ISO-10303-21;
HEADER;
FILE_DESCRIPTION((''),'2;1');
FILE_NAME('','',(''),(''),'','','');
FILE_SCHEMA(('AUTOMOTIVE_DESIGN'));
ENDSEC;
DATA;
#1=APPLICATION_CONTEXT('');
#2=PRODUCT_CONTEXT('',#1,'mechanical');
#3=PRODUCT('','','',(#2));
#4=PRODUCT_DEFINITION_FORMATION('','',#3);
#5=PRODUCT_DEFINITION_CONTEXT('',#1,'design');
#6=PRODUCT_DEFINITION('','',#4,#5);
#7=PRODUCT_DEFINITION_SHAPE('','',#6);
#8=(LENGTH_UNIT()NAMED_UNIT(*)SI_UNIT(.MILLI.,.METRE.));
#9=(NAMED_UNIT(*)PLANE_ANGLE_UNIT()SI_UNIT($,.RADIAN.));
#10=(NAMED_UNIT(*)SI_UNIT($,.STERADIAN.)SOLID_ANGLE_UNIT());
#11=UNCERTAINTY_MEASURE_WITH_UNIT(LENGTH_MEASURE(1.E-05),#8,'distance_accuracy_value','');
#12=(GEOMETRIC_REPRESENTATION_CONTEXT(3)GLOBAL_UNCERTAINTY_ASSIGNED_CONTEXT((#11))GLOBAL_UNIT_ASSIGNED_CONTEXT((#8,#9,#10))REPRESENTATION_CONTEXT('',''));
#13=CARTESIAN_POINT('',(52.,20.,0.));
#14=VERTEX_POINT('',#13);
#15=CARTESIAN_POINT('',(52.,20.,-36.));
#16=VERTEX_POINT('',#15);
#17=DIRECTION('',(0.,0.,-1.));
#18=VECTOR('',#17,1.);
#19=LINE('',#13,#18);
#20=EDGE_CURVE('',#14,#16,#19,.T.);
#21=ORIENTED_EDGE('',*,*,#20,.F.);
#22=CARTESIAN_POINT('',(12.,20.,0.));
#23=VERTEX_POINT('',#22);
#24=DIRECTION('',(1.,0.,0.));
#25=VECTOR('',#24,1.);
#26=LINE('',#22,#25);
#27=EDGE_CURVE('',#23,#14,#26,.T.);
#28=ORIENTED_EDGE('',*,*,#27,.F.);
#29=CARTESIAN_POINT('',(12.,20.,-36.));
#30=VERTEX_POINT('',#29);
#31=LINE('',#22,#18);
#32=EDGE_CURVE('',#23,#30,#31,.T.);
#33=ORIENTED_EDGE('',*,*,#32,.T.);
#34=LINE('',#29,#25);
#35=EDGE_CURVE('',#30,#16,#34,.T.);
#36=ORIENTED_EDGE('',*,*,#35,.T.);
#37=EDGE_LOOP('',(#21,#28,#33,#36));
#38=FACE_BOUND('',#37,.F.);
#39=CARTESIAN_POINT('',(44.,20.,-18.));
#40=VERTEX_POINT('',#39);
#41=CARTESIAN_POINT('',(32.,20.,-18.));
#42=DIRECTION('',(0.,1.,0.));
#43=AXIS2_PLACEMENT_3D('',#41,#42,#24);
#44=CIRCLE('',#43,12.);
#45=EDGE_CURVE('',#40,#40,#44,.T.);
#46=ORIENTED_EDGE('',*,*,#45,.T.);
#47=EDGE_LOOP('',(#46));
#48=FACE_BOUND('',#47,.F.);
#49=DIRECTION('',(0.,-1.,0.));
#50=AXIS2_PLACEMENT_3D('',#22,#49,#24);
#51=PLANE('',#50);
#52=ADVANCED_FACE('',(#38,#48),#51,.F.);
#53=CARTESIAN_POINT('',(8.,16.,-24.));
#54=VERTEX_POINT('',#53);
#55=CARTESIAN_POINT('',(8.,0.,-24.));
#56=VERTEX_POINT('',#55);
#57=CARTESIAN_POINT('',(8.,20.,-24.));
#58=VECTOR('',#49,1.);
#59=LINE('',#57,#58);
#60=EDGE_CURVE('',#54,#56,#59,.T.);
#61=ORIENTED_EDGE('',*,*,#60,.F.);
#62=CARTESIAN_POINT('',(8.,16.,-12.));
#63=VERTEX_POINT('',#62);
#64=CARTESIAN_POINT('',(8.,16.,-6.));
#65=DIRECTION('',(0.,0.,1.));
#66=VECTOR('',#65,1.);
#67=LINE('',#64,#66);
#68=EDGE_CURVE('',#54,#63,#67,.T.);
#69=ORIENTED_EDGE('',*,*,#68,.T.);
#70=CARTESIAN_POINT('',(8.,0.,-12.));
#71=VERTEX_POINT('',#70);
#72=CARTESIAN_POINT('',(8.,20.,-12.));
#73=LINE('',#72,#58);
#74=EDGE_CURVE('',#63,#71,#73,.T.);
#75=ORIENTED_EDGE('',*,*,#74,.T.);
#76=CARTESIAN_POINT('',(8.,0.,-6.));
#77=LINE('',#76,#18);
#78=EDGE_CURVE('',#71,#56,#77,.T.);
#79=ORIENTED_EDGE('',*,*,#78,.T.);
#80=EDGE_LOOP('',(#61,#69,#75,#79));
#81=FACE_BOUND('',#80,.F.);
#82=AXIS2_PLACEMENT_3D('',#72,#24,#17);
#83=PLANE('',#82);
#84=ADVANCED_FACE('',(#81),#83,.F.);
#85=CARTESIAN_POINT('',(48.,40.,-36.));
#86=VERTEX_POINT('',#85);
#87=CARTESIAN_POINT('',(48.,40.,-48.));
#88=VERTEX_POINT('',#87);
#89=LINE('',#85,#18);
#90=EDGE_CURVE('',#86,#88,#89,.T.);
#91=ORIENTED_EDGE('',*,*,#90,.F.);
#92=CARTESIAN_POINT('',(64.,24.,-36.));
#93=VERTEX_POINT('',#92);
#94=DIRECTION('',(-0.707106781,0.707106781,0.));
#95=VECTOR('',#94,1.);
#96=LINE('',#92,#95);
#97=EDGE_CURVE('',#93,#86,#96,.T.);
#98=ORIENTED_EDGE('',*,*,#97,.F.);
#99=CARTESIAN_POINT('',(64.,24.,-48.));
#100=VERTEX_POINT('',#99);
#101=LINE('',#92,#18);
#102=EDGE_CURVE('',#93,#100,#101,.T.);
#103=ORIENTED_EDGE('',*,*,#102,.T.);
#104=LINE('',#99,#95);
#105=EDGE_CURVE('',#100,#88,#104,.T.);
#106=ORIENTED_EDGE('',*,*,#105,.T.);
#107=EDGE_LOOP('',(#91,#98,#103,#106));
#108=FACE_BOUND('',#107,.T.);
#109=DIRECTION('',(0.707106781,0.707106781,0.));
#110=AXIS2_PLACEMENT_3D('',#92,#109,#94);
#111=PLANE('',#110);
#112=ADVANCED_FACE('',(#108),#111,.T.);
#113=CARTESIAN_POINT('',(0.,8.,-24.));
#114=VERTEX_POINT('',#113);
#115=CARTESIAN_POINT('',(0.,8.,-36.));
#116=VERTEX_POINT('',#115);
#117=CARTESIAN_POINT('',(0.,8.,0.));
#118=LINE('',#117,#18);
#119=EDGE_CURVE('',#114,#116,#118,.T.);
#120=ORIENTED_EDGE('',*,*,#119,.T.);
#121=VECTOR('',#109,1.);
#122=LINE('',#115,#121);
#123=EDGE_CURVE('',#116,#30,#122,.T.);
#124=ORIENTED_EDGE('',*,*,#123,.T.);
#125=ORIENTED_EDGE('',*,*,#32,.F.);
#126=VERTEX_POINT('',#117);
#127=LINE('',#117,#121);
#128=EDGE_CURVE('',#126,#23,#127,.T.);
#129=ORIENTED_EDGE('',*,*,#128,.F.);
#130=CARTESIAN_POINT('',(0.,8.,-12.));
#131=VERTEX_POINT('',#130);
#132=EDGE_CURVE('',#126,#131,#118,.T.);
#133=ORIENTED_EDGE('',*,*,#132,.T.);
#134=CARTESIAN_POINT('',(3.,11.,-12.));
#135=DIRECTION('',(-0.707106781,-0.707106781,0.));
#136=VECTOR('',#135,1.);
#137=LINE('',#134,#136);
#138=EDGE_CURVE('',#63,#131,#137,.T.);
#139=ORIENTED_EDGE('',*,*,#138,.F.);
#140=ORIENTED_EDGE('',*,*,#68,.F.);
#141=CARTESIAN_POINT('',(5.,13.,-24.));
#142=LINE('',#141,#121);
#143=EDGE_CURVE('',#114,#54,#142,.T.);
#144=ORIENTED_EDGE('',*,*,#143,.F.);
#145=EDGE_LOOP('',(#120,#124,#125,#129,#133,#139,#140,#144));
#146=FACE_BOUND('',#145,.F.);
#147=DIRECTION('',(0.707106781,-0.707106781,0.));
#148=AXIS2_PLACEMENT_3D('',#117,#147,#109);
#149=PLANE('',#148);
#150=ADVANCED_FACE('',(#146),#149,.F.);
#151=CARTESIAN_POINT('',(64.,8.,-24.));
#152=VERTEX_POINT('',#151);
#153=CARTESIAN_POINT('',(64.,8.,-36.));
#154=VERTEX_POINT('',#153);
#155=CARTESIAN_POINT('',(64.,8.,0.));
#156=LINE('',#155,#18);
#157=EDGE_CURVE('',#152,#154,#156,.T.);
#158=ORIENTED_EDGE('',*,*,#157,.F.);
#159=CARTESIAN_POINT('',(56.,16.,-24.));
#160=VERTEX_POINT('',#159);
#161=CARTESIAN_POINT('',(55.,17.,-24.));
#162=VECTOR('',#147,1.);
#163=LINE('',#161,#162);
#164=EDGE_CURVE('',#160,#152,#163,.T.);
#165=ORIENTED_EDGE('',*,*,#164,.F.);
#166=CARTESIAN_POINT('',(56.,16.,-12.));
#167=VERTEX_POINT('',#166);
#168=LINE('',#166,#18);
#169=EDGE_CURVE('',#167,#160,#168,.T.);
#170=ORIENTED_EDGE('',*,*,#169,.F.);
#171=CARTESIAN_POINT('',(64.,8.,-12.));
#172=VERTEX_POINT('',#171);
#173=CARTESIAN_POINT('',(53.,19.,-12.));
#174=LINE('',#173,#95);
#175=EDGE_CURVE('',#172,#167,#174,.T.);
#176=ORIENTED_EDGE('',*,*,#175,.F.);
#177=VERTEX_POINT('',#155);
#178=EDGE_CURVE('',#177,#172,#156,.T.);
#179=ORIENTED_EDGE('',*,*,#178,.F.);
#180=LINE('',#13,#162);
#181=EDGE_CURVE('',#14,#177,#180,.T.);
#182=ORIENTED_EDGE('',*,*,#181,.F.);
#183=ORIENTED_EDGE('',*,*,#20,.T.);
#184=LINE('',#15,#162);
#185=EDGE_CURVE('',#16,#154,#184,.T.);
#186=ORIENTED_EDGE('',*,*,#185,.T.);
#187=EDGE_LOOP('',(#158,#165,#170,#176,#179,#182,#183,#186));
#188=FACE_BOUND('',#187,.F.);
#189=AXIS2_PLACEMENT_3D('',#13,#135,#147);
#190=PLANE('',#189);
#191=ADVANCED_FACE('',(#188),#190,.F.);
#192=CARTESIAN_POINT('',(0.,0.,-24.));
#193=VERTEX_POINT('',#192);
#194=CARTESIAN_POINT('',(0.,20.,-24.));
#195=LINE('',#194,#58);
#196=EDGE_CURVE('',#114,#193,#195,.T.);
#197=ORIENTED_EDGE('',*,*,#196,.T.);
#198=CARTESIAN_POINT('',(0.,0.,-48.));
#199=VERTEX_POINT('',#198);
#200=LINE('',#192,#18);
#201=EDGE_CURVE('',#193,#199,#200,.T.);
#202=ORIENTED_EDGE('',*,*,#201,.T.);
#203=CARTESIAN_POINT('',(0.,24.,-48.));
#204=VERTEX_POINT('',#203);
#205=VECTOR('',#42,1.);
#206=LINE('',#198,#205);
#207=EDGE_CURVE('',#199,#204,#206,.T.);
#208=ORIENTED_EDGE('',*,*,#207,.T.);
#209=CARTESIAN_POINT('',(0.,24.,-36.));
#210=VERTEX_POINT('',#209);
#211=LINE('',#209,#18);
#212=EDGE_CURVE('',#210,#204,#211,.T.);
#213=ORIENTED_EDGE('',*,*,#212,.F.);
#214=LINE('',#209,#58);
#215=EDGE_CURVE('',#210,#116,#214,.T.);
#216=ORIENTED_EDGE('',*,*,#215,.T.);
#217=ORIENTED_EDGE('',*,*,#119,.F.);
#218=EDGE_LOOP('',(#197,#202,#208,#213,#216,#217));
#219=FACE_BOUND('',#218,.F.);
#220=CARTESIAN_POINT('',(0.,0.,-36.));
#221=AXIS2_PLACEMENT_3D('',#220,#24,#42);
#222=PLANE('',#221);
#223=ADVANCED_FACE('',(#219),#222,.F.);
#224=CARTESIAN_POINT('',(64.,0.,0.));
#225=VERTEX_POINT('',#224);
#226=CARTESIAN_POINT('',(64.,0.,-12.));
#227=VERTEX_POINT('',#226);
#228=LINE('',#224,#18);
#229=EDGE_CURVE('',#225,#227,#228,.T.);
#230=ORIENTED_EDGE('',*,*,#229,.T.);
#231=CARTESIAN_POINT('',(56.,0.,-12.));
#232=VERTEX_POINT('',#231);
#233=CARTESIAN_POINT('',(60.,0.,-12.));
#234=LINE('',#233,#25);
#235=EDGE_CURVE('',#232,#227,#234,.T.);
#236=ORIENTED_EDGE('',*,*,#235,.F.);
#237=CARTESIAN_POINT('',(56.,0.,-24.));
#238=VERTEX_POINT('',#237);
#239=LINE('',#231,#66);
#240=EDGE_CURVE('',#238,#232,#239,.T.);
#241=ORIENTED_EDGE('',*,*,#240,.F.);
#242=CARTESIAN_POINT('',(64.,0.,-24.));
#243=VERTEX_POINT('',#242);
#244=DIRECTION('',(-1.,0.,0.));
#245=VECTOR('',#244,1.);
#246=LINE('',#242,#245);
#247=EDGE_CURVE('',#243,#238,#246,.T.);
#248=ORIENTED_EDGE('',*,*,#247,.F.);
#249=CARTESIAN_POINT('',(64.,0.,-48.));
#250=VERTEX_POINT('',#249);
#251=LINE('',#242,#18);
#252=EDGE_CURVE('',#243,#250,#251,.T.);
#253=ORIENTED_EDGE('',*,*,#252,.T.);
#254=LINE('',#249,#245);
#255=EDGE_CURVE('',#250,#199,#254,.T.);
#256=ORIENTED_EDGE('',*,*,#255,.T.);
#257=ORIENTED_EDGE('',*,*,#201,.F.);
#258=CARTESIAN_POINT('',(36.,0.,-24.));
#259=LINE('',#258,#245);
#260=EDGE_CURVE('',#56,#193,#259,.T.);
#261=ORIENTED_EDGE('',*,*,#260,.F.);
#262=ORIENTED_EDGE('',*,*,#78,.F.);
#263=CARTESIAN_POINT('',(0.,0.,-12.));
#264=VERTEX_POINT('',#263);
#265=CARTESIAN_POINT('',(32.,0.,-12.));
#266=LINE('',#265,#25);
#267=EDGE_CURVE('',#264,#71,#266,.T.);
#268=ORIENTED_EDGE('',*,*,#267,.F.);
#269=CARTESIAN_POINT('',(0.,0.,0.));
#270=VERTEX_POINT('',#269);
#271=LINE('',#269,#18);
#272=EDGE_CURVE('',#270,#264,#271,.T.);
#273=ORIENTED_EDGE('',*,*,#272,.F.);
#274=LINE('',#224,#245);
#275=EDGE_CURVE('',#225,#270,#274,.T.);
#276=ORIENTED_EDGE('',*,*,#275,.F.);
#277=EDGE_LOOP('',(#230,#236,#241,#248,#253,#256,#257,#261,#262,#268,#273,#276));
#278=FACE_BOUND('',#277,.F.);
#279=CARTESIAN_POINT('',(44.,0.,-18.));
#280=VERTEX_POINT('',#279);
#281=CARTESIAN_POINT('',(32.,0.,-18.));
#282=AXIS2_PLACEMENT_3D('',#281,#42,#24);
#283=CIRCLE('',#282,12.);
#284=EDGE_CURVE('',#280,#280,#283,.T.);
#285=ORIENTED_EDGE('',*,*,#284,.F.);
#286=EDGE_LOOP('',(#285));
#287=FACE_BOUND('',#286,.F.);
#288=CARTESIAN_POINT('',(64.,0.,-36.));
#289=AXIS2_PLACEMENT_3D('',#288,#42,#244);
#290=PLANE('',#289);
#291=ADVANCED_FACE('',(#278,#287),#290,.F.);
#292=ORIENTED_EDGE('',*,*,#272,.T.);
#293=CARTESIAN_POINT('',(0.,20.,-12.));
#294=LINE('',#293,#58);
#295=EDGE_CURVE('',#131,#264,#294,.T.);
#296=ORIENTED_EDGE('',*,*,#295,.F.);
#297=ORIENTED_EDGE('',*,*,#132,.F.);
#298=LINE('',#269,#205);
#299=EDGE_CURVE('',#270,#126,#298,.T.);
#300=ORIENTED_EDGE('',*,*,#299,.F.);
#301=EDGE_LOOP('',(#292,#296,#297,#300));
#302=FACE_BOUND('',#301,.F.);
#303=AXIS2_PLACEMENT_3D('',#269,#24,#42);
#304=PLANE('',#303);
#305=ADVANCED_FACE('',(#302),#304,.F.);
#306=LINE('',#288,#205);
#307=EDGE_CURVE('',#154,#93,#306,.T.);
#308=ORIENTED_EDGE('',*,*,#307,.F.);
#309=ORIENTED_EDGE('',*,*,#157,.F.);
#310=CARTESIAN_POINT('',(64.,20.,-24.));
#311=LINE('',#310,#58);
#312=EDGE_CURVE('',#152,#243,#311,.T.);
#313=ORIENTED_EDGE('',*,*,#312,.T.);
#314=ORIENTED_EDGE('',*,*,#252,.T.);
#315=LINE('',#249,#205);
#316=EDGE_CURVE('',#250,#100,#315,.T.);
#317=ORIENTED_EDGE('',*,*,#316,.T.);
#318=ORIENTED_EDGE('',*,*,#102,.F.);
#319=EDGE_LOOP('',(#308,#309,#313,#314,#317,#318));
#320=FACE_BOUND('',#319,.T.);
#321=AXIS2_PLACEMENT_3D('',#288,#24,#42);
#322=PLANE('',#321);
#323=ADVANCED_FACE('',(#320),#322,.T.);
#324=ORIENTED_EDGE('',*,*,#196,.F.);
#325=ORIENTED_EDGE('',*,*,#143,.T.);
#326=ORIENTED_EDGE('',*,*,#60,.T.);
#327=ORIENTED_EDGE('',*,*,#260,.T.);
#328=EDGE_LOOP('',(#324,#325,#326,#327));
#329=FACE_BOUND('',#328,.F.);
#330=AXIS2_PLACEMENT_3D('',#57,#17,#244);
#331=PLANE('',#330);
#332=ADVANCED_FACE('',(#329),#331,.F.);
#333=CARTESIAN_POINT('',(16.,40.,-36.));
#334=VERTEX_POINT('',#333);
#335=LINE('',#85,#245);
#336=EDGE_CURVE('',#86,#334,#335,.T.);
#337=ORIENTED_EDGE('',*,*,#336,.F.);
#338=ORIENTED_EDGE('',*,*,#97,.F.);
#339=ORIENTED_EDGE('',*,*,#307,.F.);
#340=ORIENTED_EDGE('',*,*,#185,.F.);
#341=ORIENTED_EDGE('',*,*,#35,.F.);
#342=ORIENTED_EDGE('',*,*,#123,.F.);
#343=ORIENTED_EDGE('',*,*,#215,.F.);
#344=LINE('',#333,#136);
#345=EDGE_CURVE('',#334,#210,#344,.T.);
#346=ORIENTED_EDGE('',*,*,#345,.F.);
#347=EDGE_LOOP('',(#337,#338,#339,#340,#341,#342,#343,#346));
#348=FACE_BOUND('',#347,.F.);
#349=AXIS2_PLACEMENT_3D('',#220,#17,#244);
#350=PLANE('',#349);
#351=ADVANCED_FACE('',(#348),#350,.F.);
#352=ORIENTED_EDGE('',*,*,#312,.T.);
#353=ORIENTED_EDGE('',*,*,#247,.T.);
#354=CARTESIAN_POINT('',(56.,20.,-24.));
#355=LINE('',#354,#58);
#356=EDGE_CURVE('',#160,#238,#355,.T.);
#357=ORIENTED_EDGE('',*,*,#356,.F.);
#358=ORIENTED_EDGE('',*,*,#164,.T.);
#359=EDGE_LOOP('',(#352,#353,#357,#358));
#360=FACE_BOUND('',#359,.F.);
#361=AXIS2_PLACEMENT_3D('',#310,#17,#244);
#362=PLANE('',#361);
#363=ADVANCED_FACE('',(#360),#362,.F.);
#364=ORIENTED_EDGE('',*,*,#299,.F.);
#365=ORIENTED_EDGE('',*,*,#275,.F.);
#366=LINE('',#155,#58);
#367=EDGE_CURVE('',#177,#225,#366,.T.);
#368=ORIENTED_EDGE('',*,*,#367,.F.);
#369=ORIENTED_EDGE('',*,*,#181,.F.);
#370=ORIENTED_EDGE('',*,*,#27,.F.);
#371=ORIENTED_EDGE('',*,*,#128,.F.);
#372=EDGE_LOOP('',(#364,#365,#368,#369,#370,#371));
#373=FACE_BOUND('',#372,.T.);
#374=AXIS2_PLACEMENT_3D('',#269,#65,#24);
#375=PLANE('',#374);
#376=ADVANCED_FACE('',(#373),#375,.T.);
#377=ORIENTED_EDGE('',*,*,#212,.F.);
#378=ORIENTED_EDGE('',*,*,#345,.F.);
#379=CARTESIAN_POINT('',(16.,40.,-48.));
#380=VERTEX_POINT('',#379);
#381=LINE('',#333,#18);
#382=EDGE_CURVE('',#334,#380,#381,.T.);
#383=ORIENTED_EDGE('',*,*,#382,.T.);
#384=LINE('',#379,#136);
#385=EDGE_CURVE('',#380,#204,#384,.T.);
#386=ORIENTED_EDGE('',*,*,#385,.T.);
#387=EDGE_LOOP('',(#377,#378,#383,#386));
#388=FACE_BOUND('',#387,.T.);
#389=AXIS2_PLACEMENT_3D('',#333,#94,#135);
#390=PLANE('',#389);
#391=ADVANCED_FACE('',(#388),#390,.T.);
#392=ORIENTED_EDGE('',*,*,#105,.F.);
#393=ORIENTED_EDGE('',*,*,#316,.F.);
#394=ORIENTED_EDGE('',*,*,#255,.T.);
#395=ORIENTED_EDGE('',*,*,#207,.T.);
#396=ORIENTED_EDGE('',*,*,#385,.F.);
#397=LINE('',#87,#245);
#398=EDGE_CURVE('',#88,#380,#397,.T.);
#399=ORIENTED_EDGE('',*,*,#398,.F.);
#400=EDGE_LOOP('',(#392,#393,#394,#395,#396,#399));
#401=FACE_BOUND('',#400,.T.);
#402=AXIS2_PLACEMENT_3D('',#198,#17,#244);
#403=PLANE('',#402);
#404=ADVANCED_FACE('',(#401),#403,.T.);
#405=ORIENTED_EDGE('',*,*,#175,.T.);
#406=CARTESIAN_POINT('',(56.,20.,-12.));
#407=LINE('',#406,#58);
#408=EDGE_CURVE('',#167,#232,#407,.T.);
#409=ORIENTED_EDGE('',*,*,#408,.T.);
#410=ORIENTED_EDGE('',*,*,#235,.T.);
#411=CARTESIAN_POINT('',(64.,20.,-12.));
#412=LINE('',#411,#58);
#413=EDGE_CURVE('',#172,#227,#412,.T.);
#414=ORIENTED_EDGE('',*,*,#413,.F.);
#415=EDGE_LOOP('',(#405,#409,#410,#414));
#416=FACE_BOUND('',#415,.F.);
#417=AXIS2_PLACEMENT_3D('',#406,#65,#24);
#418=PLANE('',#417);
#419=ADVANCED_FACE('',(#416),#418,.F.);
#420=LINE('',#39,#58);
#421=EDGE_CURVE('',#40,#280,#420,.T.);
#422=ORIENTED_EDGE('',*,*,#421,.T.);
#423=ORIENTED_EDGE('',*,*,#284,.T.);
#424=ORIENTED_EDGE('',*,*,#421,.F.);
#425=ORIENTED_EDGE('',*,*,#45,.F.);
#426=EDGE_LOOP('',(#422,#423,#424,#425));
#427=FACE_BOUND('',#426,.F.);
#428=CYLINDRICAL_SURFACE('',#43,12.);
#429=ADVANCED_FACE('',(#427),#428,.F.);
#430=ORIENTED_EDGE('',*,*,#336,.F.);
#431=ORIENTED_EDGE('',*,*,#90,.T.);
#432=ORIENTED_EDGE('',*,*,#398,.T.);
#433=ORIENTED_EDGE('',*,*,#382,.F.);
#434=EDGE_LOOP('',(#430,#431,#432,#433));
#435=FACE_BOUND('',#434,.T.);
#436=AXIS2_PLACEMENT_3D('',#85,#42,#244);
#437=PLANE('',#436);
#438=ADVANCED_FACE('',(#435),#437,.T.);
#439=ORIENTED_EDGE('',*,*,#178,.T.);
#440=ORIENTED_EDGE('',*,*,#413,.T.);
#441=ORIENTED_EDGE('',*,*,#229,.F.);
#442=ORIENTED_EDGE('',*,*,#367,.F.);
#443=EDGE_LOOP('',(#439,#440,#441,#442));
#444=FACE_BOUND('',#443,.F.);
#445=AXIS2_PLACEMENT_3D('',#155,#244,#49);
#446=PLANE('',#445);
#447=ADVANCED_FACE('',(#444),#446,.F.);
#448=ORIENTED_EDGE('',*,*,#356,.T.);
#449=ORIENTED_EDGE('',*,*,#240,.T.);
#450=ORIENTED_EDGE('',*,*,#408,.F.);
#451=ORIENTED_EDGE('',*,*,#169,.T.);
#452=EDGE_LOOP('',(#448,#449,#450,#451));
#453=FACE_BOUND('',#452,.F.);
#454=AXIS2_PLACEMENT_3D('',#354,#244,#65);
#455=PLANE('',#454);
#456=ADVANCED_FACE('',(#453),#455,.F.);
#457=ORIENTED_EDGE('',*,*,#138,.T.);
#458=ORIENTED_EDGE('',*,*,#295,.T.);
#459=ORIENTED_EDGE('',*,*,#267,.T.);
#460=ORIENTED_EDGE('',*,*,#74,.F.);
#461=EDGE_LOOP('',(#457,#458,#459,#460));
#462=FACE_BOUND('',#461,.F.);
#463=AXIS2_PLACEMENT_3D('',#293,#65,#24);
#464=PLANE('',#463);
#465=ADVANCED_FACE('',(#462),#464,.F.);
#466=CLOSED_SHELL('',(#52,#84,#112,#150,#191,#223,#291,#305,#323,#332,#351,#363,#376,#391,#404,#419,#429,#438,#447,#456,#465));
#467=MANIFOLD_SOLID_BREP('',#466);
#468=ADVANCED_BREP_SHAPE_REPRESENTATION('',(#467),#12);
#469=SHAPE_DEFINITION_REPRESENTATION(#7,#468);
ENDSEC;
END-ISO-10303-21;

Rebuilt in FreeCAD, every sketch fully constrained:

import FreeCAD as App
import Part
import Sketcher
from FreeCAD import Vector
Q = App.Units.Quantity


def add_polygon(sketch, points):
    """Adds a closed chain of lines whose ends are joined by coincident constraints."""
    first, n = sketch.GeometryCount, len(points)
    for a, b in zip(points, points[1:] + points[:1]):
        sketch.addGeometry(Part.LineSegment(App.Vector(*a, 0), App.Vector(*b, 0)), False)
    for i in range(n):
        sketch.addConstraint(Sketcher.Constraint("Coincident", first + i, 2, first + (i + 1) % n, 1))

doc = App.newDocument("Part")
body = doc.addObject("PartDesign::Body", "Body")

# Sketch on XY plane
sketch1 = doc.addObject("Sketcher::SketchObject", "Sketch")
body.addObject(sketch1)
sketch1.AttachmentSupport = (doc.XY_Plane, [""])
sketch1.MapMode = "FlatFace"
add_polygon(sketch1, [(0, 8), (0, 0), (64, 0), (64, 8), (52, 20), (12, 20)])  # lines 0-5
sketch1.addConstraint([
    Sketcher.Constraint("Vertical", 0),
    Sketcher.Constraint("Horizontal", 1),
    Sketcher.Constraint("Vertical", 2),
    Sketcher.Constraint("Horizontal", 4),
    Sketcher.Constraint("Coincident", 0, 2, -1, 1),
    Sketcher.Constraint("Perpendicular", 3, 5),
    Sketcher.Constraint("Horizontal", 2, 2, 5, 2),
    Sketcher.Constraint("Equal", 3, 5),
    Sketcher.Constraint("DistanceX", 1, 1, 1, 2, Q("64 mm")),
    Sketcher.Constraint("DistanceX", 4, 2, 4, 1, Q("40 mm")),
    Sketcher.Constraint("DistanceY", 0, 2, 0, 1, Q("8 mm")),
])
pad1 = doc.addObject("PartDesign::Pad", "Pad")
body.addObject(pad1)
pad1.Profile = sketch1
pad1.Length = 36
pad1.Reversed = True

# Sketch on XZ plane
sketch2 = doc.addObject("Sketcher::SketchObject", "Sketch001")
body.addObject(sketch2)
sketch2.AttachmentSupport = (doc.XZ_Plane, [""])
sketch2.MapMode = "FlatFace"
sketch2.AttachmentOffset = App.Placement(Vector(0, 0, -20), App.Rotation())
add_polygon(sketch2, [(56, -12), (64, -12), (64, -24), (56, -24)])  # lines 0-3
sketch2.addConstraint([
    Sketcher.Constraint("Horizontal", 0),
    Sketcher.Constraint("Vertical", 1),
    Sketcher.Constraint("Horizontal", 2),
    Sketcher.Constraint("Vertical", 3),
    Sketcher.Constraint("DistanceX", 0, 1, 0, 2, Q("8 mm")),
    Sketcher.Constraint("DistanceY", 1, 2, 1, 1, Q("12 mm")),
    Sketcher.Constraint("DistanceY", 0, 2, -1, 1, Q("12 mm")),
    Sketcher.Constraint("DistanceX", -1, 1, 0, 2, Q("64 mm")),
])
pocket1 = doc.addObject("PartDesign::Pocket", "Pocket")
body.addObject(pocket1)
pocket1.Profile = sketch2
pocket1.Length = 48
pocket1.Reversed = True

# Sketch on XZ plane
sketch3 = doc.addObject("Sketcher::SketchObject", "Sketch002")
body.addObject(sketch3)
sketch3.AttachmentSupport = (doc.XZ_Plane, [""])
sketch3.MapMode = "FlatFace"
sketch3.AttachmentOffset = App.Placement(Vector(0, 0, -20), App.Rotation())
add_polygon(sketch3, [(0, -24), (0, -12), (8, -12), (8, -24)])  # lines 0-3
sketch3.addConstraint([
    Sketcher.Constraint("Vertical", 0),
    Sketcher.Constraint("Horizontal", 1),
    Sketcher.Constraint("Vertical", 2),
    Sketcher.Constraint("Horizontal", 3),
    Sketcher.Constraint("PointOnObject", 0, 2, -2),
    Sketcher.Constraint("DistanceX", 1, 1, 1, 2, Q("8 mm")),
    Sketcher.Constraint("DistanceY", 0, 1, 0, 2, Q("12 mm")),
    Sketcher.Constraint("DistanceY", 0, 2, -1, 1, Q("12 mm")),
])
pocket2 = doc.addObject("PartDesign::Pocket", "Pocket001")
body.addObject(pocket2)
pocket2.Profile = sketch3
pocket2.Length = 48
pocket2.Reversed = True

# Sketch on XZ plane
sketch4 = doc.addObject("Sketcher::SketchObject", "Sketch003")
body.addObject(sketch4)
sketch4.AttachmentSupport = (doc.XZ_Plane, [""])
sketch4.MapMode = "FlatFace"
sketch4.AttachmentOffset = App.Placement(Vector(0, 0, -20), App.Rotation())
sketch4.addGeometry(Part.Circle(Vector(32, -18, 0), Vector(0, 0, 1), 12), False)
sketch4.addConstraint([
    Sketcher.Constraint("Diameter", 0, Q("24 mm")),
    Sketcher.Constraint("DistanceY", 0, 3, -1, 1, Q("18 mm")),
    Sketcher.Constraint("DistanceX", -1, 1, 0, 3, Q("32 mm")),
])
pocket3 = doc.addObject("PartDesign::Pocket", "Pocket002")
body.addObject(pocket3)
pocket3.Profile = sketch4
pocket3.Length = 48
pocket3.Reversed = True

# Sketch on XY plane
sketch5 = doc.addObject("Sketcher::SketchObject", "Sketch004")
body.addObject(sketch5)
sketch5.AttachmentSupport = (doc.XY_Plane, [""])
sketch5.MapMode = "FlatFace"
sketch5.AttachmentOffset = App.Placement(Vector(0, 0, -36), App.Rotation())
add_polygon(sketch5, [(64, 24), (64, 0), (0, 0), (0, 24), (16, 40), (48, 40)])  # lines 0-5
sketch5.addConstraint([
    Sketcher.Constraint("Vertical", 0),
    Sketcher.Constraint("Horizontal", 1),
    Sketcher.Constraint("Vertical", 2),
    Sketcher.Constraint("Horizontal", 4),
    Sketcher.Constraint("Coincident", 1, 2, -1, 1),
    Sketcher.Constraint("Perpendicular", 3, 5),
    Sketcher.Constraint("Horizontal", 2, 2, 5, 2),
    Sketcher.Constraint("Equal", 3, 5),
    Sketcher.Constraint("DistanceX", 4, 1, 4, 2, Q("32 mm")),
    Sketcher.Constraint("DistanceX", -1, 1, 3, 2, Q("16 mm")),
    Sketcher.Constraint("DistanceY", -1, 1, 3, 2, Q("40 mm")),
])
pad2 = doc.addObject("PartDesign::Pad", "Pad001")
body.addObject(pad2)
pad2.Profile = sketch5
pad2.Length = 12
pad2.Reversed = True

doc.recompute()
